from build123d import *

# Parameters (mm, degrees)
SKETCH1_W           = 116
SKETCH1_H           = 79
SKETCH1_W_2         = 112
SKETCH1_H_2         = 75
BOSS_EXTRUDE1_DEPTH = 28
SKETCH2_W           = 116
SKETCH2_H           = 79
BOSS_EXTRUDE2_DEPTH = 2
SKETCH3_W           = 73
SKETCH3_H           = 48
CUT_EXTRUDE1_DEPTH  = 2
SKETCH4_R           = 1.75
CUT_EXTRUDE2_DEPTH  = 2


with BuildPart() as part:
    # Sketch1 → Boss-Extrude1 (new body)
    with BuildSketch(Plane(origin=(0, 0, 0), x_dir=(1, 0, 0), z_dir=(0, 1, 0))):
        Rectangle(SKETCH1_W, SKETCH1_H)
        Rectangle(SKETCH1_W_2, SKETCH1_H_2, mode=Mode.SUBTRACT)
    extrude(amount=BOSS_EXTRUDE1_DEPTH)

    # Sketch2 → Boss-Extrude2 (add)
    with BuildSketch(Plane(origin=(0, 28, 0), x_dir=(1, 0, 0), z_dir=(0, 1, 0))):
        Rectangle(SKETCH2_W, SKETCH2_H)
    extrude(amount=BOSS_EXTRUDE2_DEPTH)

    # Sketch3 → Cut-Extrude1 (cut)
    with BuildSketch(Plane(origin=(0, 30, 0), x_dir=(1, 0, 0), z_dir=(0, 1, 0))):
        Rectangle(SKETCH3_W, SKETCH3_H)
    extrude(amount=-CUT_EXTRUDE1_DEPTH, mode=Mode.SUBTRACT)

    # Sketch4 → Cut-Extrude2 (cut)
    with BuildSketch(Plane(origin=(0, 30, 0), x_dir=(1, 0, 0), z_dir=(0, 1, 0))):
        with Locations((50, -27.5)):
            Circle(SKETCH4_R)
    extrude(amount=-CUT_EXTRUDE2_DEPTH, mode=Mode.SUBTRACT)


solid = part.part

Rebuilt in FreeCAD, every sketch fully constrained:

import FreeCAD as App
import Part
import Sketcher
Q = App.Units.Quantity


def add_polygon(sketch, points):
    """Adds a closed chain of lines whose ends are joined by coincident constraints."""
    first, n = sketch.GeometryCount, len(points)
    for a, b in zip(points, points[1:] + points[:1]):
        sketch.addGeometry(Part.LineSegment(App.Vector(*a, 0), App.Vector(*b, 0)), False)
    for i in range(n):
        sketch.addConstraint(Sketcher.Constraint("Coincident", first + i, 2, first + (i + 1) % n, 1))

doc = App.newDocument("Part")
body = doc.addObject("PartDesign::Body", "Body")

# Sketch on XZ plane
sketch1 = body.newObject("Sketcher::SketchObject", "Sketch")
sketch1.AttachmentSupport = (doc.getObject("XZ_Plane"), [""])
sketch1.MapMode = "FlatFace"
add_polygon(sketch1, [(-58, -39.5), (-58, 39.5), (58, 39.5), (58, -39.5)])  # lines 0-3
add_polygon(sketch1, [(56, 37.5), (-56, 37.5), (-56, -37.5), (56, -37.5)])  # lines 4-7
sketch1.addConstraint([
    Sketcher.Constraint("Vertical", 0),
    Sketcher.Constraint("Horizontal", 1),
    Sketcher.Constraint("Vertical", 2),
    Sketcher.Constraint("Horizontal", 3),
    Sketcher.Constraint("Horizontal", 4),
    Sketcher.Constraint("Vertical", 5),
    Sketcher.Constraint("Horizontal", 6),
    Sketcher.Constraint("Vertical", 7),
    Sketcher.Constraint("Symmetric", 0, 2, 2, 2, -1, 1),
    Sketcher.Constraint("Symmetric", 4, 2, 6, 2, -1, 1),
    Sketcher.Constraint("DistanceX", 1, 1, 1, 2, Q("116 mm")),
    Sketcher.Constraint("DistanceX", 4, 2, 4, 1, Q("112 mm")),
    Sketcher.Constraint("DistanceY", 0, 1, 0, 2, Q("79 mm")),
    Sketcher.Constraint("DistanceY", 5, 2, 5, 1, Q("75 mm")),
])
pad1 = body.newObject("PartDesign::Pad", "Pad")
pad1.Profile = sketch1
pad1.Length = 28
pad1.Reversed = True

# Sketch on XZ plane
sketch2 = body.newObject("Sketcher::SketchObject", "Sketch001")
sketch2.AttachmentSupport = (doc.getObject("XZ_Plane"), [""])
sketch2.MapMode = "FlatFace"
sketch2.AttachmentOffset = App.Placement(App.Vector(0, 0, -28), App.Rotation())
add_polygon(sketch2, [(-58, -39.5), (-58, 39.5), (58, 39.5), (58, -39.5)])  # lines 0-3
sketch2.addConstraint([
    Sketcher.Constraint("Vertical", 0),
    Sketcher.Constraint("Horizontal", 1),
    Sketcher.Constraint("Vertical", 2),
    Sketcher.Constraint("Horizontal", 3),
    Sketcher.Constraint("Symmetric", 0, 2, 2, 2, -1, 1),
    Sketcher.Constraint("DistanceX", 1, 1, 1, 2, Q("116 mm")),
    Sketcher.Constraint("DistanceY", 0, 1, 0, 2, Q("79 mm")),
])
pad2 = body.newObject("PartDesign::Pad", "Pad001")
pad2.Profile = sketch2
pad2.Length = 2
pad2.Reversed = True

# Sketch on XZ plane
sketch3 = body.newObject("Sketcher::SketchObject", "Sketch002")
sketch3.AttachmentSupport = (doc.getObject("XZ_Plane"), [""])
sketch3.MapMode = "FlatFace"
sketch3.AttachmentOffset = App.Placement(App.Vector(0, 0, -30), App.Rotation())
add_polygon(sketch3, [(-36.5, -24), (-36.5, 24), (36.5, 24), (36.5, -24)])  # lines 0-3
sketch3.addConstraint([
    Sketcher.Constraint("Vertical", 0),
    Sketcher.Constraint("Horizontal", 1),
    Sketcher.Constraint("Vertical", 2),
    Sketcher.Constraint("Horizontal", 3),
    Sketcher.Constraint("Symmetric", 0, 2, 2, 2, -1, 1),
    Sketcher.Constraint("DistanceX", 1, 1, 1, 2, Q("73 mm")),
    Sketcher.Constraint("DistanceY", 0, 1, 0, 2, Q("48 mm")),
])
pocket1 = body.newObject("PartDesign::Pocket", "Pocket")
pocket1.Profile = sketch3
pocket1.Length = 2
pocket1.Reversed = True

# Sketch on XZ plane
sketch4 = body.newObject("Sketcher::SketchObject", "Sketch003")
sketch4.AttachmentSupport = (doc.getObject("XZ_Plane"), [""])
sketch4.MapMode = "FlatFace"
sketch4.AttachmentOffset = App.Placement(App.Vector(0, 0, -30), App.Rotation())
sketch4.addGeometry(Part.Circle(App.Vector(50, 27.5, 0), App.Vector(0, 0, 1), 1.75), False)
sketch4.addConstraint([
    Sketcher.Constraint("Diameter", 0, Q("3.5 mm")),
    Sketcher.Constraint("DistanceX", -1, 1, 0, 3, Q("50 mm")),
    Sketcher.Constraint("DistanceY", -1, 1, 0, 3, Q("27.5 mm")),
])
pocket2 = body.newObject("PartDesign::Pocket", "Pocket001")
pocket2.Profile = sketch4
pocket2.Length = 2
pocket2.Reversed = True

doc.recompute()
